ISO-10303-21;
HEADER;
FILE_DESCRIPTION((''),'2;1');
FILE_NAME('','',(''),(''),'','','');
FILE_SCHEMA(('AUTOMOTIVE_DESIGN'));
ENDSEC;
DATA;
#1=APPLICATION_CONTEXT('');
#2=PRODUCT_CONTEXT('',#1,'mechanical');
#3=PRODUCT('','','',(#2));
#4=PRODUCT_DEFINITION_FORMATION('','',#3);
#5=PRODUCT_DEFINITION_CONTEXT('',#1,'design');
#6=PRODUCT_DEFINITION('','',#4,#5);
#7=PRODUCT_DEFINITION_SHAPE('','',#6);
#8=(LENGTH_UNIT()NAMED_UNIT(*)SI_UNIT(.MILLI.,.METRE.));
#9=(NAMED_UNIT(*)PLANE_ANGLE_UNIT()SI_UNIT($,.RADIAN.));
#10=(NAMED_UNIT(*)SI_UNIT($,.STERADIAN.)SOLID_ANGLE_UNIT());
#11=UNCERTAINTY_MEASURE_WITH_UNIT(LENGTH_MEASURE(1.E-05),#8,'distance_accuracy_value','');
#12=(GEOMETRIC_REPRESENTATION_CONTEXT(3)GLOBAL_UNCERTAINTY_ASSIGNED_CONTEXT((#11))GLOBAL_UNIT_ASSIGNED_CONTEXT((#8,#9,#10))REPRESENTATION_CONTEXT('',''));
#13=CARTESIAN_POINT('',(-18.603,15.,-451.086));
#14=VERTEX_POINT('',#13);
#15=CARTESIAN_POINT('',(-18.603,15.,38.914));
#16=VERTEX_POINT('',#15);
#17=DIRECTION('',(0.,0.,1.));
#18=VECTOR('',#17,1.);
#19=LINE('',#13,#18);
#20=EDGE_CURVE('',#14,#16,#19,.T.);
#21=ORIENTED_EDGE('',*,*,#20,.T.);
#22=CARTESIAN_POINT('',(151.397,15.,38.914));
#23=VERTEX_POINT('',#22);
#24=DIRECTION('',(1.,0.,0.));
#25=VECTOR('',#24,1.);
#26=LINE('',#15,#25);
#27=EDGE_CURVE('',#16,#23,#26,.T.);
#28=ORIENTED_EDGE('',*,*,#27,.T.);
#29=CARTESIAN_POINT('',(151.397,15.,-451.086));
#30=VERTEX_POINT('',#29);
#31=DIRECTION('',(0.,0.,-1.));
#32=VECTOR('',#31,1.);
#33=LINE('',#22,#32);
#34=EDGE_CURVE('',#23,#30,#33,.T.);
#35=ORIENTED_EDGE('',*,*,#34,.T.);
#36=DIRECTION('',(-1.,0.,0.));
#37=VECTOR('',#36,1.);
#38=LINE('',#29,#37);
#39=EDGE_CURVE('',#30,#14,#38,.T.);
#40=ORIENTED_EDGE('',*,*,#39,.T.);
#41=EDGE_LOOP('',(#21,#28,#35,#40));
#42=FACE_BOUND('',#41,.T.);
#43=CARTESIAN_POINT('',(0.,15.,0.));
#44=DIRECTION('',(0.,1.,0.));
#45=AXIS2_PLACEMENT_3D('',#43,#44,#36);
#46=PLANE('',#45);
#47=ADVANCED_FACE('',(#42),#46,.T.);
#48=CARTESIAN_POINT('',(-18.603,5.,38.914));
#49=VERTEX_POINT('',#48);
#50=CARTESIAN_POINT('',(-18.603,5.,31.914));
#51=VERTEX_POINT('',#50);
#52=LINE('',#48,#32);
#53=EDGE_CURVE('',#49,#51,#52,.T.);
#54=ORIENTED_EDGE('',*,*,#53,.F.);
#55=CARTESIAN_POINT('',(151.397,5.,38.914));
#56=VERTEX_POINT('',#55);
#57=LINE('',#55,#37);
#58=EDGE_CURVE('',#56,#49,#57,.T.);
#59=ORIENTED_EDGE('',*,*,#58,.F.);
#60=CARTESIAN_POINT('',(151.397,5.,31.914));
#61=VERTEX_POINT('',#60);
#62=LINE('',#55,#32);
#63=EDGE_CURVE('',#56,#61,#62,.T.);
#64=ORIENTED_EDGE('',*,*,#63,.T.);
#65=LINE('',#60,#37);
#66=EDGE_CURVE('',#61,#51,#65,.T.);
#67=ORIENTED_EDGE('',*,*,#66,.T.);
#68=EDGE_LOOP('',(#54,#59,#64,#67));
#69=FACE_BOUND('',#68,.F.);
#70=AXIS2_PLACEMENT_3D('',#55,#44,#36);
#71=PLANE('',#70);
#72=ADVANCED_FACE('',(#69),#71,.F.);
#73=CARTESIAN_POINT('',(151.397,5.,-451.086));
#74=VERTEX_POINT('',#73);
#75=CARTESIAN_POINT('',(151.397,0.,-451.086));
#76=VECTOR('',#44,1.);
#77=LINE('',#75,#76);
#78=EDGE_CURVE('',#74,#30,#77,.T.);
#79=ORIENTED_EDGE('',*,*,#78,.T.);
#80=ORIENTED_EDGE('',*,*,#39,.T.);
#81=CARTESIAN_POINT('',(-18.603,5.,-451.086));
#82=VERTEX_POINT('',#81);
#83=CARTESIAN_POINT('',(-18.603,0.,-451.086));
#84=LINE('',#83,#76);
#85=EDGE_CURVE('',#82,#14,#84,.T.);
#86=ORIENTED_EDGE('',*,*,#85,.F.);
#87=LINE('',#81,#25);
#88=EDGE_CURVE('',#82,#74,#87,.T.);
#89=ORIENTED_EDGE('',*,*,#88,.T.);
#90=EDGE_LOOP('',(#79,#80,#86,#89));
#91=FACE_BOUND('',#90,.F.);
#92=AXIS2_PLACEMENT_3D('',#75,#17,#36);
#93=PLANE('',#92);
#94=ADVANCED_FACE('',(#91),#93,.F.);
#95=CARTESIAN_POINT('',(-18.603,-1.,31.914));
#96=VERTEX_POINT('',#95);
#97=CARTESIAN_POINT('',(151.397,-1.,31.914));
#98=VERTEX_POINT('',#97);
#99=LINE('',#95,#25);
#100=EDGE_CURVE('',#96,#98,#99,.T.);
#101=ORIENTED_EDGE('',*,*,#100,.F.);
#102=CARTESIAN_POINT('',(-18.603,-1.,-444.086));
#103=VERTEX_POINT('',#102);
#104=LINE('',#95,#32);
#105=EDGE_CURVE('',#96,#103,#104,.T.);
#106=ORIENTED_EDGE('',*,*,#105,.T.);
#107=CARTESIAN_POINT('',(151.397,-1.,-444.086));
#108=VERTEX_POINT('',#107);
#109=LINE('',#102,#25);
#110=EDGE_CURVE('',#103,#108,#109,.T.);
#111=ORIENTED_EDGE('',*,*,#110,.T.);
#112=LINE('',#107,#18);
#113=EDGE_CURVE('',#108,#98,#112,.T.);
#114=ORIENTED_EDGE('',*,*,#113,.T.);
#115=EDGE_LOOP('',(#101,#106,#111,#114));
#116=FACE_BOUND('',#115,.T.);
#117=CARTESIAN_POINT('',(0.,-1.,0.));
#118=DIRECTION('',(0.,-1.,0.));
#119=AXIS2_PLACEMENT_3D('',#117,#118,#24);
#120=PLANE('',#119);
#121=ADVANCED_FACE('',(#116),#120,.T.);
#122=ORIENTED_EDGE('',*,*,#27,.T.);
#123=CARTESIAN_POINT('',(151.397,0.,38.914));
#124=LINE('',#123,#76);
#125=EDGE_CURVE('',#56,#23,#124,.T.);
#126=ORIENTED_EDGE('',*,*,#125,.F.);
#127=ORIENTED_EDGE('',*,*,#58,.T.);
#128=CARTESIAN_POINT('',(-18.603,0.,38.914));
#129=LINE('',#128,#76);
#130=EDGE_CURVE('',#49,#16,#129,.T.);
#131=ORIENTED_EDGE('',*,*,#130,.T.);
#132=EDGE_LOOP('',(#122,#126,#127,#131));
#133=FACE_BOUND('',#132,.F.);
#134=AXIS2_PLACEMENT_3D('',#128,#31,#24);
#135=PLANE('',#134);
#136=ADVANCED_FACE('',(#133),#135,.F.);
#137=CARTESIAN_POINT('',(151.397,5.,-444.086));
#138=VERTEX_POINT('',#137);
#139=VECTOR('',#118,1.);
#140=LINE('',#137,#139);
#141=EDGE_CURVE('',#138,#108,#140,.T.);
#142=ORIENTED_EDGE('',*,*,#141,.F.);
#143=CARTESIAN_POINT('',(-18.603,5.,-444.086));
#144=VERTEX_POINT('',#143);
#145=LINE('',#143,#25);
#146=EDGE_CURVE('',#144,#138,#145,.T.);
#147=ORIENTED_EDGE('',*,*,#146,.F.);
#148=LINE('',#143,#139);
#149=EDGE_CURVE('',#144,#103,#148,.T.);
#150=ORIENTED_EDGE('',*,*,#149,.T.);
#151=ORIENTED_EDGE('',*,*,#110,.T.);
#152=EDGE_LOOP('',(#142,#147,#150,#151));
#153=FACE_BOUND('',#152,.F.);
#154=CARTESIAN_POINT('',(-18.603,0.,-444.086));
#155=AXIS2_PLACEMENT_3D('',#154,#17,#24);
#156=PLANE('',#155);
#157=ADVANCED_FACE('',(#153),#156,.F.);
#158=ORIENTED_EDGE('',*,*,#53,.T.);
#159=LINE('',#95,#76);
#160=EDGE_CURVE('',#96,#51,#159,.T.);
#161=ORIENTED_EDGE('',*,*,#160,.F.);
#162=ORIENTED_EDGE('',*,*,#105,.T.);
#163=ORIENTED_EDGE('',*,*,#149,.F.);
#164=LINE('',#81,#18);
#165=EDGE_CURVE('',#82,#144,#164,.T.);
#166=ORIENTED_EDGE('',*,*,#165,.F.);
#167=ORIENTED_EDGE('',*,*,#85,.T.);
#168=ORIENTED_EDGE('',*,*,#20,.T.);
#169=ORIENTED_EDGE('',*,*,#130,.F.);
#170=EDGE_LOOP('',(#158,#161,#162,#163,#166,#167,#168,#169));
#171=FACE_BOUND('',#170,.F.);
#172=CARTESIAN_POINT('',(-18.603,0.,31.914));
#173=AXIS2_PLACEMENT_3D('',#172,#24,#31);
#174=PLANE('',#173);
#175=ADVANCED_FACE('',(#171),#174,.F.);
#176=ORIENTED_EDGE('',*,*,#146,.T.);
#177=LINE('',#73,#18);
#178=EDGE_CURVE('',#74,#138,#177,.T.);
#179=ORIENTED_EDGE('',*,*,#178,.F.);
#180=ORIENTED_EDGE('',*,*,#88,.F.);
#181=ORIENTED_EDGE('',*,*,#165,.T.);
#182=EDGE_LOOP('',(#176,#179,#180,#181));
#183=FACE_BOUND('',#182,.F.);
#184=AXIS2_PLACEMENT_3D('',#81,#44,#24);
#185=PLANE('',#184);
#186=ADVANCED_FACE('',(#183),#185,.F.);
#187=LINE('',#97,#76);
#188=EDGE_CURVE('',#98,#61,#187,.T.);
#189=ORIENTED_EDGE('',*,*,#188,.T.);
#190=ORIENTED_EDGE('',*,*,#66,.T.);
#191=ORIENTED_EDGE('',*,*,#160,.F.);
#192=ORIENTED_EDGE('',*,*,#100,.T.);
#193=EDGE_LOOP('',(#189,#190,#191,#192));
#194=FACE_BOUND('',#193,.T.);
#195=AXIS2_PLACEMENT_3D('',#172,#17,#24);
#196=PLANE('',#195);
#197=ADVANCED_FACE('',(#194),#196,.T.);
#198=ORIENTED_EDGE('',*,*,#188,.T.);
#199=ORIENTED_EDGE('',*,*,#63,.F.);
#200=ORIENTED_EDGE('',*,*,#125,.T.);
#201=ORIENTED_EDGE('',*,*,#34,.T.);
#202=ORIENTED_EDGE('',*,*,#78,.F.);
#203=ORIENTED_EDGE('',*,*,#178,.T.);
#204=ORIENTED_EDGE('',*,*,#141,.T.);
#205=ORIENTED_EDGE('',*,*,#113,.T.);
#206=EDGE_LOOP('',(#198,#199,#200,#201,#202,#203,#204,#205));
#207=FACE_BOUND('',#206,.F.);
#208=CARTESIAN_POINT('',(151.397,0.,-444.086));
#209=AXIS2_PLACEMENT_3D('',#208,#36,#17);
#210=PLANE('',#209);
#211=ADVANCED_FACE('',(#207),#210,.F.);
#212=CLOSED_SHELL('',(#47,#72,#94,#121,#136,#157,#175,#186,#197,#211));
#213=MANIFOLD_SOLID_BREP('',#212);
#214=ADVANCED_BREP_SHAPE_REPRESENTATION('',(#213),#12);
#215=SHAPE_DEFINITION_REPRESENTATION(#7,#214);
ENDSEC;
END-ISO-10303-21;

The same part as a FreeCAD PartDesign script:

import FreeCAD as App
import Part
import Sketcher

V = App.Vector


def add_polygon(sketch, points):
    """Adds a closed chain of lines whose ends are joined by coincident constraints."""
    first, n = sketch.GeometryCount, len(points)
    for a, b in zip(points, points[1:] + points[:1]):
        sketch.addGeometry(Part.LineSegment(App.Vector(*a, 0), App.Vector(*b, 0)), False)
    for i in range(n):
        sketch.addConstraint(Sketcher.Constraint("Coincident", first + i, 2, first + (i + 1) % n, 1))

doc = App.newDocument("Part")
body = doc.addObject("PartDesign::Body", "Body")

sketch1 = body.newObject("Sketcher::SketchObject", "Sketch")
sketch1.AttachmentSupport = (doc.getObject("XZ_Plane"), [""])
sketch1.MapMode = "FlatFace"
add_polygon(sketch1, [(-19, -451), (-19, 39), (151, 39), (151, -451)])
sketch1.addConstraint(Sketcher.Constraint("Vertical", 0))
sketch1.addConstraint(Sketcher.Constraint("Horizontal", 1))
sketch1.addConstraint(Sketcher.Constraint("Vertical", 2))
sketch1.addConstraint(Sketcher.Constraint("Horizontal", 3))
sketch1.addConstraint(Sketcher.Constraint("DistanceX", 1, 1, 1, 2, 170.0))
sketch1.addConstraint(Sketcher.Constraint("DistanceY", 0, 1, 0, 2, 490.0))
sketch1.addConstraint(Sketcher.Constraint("DistanceX", 0, 2, -1, 1, 18.603))
sketch1.addConstraint(Sketcher.Constraint("DistanceY", -1, 1, 0, 2, 38.914))
pad1 = body.newObject("PartDesign::Pad", "Pad")
pad1.Profile = sketch1
pad1.Length = 15
pad1.Reversed = True

sketch2 = body.newObject("Sketcher::SketchObject", "Sketch001")
sketch2.AttachmentSupport = (doc.getObject("XY_Plane"), [""])
sketch2.MapMode = "FlatFace"
sketch2.AttachmentOffset = App.Placement(V(0, 0, 38.914), App.Rotation())
add_polygon(sketch2, [(-19, 0), (151, 0), (151, 5), (-19, 5)])
sketch2.addConstraint(Sketcher.Constraint("Horizontal", 0))
sketch2.addConstraint(Sketcher.Constraint("Vertical", 1))
sketch2.addConstraint(Sketcher.Constraint("Horizontal", 2))
sketch2.addConstraint(Sketcher.Constraint("Vertical", 3))
sketch2.addConstraint(Sketcher.Constraint("PointOnObject", 0, 2, -1))
sketch2.addConstraint(Sketcher.Constraint("DistanceX", 0, 1, 0, 2, 170.0))
sketch2.addConstraint(Sketcher.Constraint("DistanceY", 1, 1, 1, 2, 5.0))
sketch2.addConstraint(Sketcher.Constraint("DistanceX", -1, 1, 0, 2, 151.397))
pocket1 = body.newObject("PartDesign::Pocket", "Pocket")
pocket1.Profile = sketch2
pocket1.Length = 7

sketch3 = body.newObject("Sketcher::SketchObject", "Sketch002")
sketch3.AttachmentSupport = (doc.getObject("XY_Plane"), [""])
sketch3.MapMode = "FlatFace"
sketch3.AttachmentOffset = App.Placement(V(0, 0, -451.086), App.Rotation())
add_polygon(sketch3, [(151, 5), (151, 0), (-19, 0), (-19, 5)])
sketch3.addConstraint(Sketcher.Constraint("Vertical", 0))
sketch3.addConstraint(Sketcher.Constraint("Horizontal", 1))
sketch3.addConstraint(Sketcher.Constraint("Vertical", 2))
sketch3.addConstraint(Sketcher.Constraint("Horizontal", 3))
sketch3.addConstraint(Sketcher.Constraint("PointOnObject", 0, 2, -1))
sketch3.addConstraint(Sketcher.Constraint("DistanceX", 1, 2, 1, 1, 170.0))
sketch3.addConstraint(Sketcher.Constraint("DistanceY", 0, 2, 0, 1, 5.0))
sketch3.addConstraint(Sketcher.Constraint("DistanceX", -1, 1, 0, 2, 151.397))
pocket2 = body.newObject("PartDesign::Pocket", "Pocket001")
pocket2.Profile = sketch3
pocket2.Length = 7
pocket2.Reversed = True

sketch4 = body.newObject("Sketcher::SketchObject", "Sketch003")
sketch4.AttachmentSupport = (doc.getObject("XZ_Plane"), [""])
sketch4.MapMode = "FlatFace"
add_polygon(sketch4, [(-19, 32), (-19, -444), (151, -444), (151, 32)])
sketch4.addConstraint(Sketcher.Constraint("Vertical", 0))
sketch4.addConstraint(Sketcher.Constraint("Horizontal", 1))
sketch4.addConstraint(Sketcher.Constraint("Vertical", 2))
sketch4.addConstraint(Sketcher.Constraint("Horizontal", 3))
sketch4.addConstraint(Sketcher.Constraint("DistanceX", 1, 1, 1, 2, 170.0))
sketch4.addConstraint(Sketcher.Constraint("DistanceY", 0, 2, 0, 1, 476.0))
sketch4.addConstraint(Sketcher.Constraint("DistanceX", 0, 2, -1, 1, 18.603))
sketch4.addConstraint(Sketcher.Constraint("DistanceY", 0, 2, -1, 1, 444.086))
pad2 = body.newObject("PartDesign::Pad", "Pad001")
pad2.Profile = sketch4
pad2.Length = 1

doc.recompute()
